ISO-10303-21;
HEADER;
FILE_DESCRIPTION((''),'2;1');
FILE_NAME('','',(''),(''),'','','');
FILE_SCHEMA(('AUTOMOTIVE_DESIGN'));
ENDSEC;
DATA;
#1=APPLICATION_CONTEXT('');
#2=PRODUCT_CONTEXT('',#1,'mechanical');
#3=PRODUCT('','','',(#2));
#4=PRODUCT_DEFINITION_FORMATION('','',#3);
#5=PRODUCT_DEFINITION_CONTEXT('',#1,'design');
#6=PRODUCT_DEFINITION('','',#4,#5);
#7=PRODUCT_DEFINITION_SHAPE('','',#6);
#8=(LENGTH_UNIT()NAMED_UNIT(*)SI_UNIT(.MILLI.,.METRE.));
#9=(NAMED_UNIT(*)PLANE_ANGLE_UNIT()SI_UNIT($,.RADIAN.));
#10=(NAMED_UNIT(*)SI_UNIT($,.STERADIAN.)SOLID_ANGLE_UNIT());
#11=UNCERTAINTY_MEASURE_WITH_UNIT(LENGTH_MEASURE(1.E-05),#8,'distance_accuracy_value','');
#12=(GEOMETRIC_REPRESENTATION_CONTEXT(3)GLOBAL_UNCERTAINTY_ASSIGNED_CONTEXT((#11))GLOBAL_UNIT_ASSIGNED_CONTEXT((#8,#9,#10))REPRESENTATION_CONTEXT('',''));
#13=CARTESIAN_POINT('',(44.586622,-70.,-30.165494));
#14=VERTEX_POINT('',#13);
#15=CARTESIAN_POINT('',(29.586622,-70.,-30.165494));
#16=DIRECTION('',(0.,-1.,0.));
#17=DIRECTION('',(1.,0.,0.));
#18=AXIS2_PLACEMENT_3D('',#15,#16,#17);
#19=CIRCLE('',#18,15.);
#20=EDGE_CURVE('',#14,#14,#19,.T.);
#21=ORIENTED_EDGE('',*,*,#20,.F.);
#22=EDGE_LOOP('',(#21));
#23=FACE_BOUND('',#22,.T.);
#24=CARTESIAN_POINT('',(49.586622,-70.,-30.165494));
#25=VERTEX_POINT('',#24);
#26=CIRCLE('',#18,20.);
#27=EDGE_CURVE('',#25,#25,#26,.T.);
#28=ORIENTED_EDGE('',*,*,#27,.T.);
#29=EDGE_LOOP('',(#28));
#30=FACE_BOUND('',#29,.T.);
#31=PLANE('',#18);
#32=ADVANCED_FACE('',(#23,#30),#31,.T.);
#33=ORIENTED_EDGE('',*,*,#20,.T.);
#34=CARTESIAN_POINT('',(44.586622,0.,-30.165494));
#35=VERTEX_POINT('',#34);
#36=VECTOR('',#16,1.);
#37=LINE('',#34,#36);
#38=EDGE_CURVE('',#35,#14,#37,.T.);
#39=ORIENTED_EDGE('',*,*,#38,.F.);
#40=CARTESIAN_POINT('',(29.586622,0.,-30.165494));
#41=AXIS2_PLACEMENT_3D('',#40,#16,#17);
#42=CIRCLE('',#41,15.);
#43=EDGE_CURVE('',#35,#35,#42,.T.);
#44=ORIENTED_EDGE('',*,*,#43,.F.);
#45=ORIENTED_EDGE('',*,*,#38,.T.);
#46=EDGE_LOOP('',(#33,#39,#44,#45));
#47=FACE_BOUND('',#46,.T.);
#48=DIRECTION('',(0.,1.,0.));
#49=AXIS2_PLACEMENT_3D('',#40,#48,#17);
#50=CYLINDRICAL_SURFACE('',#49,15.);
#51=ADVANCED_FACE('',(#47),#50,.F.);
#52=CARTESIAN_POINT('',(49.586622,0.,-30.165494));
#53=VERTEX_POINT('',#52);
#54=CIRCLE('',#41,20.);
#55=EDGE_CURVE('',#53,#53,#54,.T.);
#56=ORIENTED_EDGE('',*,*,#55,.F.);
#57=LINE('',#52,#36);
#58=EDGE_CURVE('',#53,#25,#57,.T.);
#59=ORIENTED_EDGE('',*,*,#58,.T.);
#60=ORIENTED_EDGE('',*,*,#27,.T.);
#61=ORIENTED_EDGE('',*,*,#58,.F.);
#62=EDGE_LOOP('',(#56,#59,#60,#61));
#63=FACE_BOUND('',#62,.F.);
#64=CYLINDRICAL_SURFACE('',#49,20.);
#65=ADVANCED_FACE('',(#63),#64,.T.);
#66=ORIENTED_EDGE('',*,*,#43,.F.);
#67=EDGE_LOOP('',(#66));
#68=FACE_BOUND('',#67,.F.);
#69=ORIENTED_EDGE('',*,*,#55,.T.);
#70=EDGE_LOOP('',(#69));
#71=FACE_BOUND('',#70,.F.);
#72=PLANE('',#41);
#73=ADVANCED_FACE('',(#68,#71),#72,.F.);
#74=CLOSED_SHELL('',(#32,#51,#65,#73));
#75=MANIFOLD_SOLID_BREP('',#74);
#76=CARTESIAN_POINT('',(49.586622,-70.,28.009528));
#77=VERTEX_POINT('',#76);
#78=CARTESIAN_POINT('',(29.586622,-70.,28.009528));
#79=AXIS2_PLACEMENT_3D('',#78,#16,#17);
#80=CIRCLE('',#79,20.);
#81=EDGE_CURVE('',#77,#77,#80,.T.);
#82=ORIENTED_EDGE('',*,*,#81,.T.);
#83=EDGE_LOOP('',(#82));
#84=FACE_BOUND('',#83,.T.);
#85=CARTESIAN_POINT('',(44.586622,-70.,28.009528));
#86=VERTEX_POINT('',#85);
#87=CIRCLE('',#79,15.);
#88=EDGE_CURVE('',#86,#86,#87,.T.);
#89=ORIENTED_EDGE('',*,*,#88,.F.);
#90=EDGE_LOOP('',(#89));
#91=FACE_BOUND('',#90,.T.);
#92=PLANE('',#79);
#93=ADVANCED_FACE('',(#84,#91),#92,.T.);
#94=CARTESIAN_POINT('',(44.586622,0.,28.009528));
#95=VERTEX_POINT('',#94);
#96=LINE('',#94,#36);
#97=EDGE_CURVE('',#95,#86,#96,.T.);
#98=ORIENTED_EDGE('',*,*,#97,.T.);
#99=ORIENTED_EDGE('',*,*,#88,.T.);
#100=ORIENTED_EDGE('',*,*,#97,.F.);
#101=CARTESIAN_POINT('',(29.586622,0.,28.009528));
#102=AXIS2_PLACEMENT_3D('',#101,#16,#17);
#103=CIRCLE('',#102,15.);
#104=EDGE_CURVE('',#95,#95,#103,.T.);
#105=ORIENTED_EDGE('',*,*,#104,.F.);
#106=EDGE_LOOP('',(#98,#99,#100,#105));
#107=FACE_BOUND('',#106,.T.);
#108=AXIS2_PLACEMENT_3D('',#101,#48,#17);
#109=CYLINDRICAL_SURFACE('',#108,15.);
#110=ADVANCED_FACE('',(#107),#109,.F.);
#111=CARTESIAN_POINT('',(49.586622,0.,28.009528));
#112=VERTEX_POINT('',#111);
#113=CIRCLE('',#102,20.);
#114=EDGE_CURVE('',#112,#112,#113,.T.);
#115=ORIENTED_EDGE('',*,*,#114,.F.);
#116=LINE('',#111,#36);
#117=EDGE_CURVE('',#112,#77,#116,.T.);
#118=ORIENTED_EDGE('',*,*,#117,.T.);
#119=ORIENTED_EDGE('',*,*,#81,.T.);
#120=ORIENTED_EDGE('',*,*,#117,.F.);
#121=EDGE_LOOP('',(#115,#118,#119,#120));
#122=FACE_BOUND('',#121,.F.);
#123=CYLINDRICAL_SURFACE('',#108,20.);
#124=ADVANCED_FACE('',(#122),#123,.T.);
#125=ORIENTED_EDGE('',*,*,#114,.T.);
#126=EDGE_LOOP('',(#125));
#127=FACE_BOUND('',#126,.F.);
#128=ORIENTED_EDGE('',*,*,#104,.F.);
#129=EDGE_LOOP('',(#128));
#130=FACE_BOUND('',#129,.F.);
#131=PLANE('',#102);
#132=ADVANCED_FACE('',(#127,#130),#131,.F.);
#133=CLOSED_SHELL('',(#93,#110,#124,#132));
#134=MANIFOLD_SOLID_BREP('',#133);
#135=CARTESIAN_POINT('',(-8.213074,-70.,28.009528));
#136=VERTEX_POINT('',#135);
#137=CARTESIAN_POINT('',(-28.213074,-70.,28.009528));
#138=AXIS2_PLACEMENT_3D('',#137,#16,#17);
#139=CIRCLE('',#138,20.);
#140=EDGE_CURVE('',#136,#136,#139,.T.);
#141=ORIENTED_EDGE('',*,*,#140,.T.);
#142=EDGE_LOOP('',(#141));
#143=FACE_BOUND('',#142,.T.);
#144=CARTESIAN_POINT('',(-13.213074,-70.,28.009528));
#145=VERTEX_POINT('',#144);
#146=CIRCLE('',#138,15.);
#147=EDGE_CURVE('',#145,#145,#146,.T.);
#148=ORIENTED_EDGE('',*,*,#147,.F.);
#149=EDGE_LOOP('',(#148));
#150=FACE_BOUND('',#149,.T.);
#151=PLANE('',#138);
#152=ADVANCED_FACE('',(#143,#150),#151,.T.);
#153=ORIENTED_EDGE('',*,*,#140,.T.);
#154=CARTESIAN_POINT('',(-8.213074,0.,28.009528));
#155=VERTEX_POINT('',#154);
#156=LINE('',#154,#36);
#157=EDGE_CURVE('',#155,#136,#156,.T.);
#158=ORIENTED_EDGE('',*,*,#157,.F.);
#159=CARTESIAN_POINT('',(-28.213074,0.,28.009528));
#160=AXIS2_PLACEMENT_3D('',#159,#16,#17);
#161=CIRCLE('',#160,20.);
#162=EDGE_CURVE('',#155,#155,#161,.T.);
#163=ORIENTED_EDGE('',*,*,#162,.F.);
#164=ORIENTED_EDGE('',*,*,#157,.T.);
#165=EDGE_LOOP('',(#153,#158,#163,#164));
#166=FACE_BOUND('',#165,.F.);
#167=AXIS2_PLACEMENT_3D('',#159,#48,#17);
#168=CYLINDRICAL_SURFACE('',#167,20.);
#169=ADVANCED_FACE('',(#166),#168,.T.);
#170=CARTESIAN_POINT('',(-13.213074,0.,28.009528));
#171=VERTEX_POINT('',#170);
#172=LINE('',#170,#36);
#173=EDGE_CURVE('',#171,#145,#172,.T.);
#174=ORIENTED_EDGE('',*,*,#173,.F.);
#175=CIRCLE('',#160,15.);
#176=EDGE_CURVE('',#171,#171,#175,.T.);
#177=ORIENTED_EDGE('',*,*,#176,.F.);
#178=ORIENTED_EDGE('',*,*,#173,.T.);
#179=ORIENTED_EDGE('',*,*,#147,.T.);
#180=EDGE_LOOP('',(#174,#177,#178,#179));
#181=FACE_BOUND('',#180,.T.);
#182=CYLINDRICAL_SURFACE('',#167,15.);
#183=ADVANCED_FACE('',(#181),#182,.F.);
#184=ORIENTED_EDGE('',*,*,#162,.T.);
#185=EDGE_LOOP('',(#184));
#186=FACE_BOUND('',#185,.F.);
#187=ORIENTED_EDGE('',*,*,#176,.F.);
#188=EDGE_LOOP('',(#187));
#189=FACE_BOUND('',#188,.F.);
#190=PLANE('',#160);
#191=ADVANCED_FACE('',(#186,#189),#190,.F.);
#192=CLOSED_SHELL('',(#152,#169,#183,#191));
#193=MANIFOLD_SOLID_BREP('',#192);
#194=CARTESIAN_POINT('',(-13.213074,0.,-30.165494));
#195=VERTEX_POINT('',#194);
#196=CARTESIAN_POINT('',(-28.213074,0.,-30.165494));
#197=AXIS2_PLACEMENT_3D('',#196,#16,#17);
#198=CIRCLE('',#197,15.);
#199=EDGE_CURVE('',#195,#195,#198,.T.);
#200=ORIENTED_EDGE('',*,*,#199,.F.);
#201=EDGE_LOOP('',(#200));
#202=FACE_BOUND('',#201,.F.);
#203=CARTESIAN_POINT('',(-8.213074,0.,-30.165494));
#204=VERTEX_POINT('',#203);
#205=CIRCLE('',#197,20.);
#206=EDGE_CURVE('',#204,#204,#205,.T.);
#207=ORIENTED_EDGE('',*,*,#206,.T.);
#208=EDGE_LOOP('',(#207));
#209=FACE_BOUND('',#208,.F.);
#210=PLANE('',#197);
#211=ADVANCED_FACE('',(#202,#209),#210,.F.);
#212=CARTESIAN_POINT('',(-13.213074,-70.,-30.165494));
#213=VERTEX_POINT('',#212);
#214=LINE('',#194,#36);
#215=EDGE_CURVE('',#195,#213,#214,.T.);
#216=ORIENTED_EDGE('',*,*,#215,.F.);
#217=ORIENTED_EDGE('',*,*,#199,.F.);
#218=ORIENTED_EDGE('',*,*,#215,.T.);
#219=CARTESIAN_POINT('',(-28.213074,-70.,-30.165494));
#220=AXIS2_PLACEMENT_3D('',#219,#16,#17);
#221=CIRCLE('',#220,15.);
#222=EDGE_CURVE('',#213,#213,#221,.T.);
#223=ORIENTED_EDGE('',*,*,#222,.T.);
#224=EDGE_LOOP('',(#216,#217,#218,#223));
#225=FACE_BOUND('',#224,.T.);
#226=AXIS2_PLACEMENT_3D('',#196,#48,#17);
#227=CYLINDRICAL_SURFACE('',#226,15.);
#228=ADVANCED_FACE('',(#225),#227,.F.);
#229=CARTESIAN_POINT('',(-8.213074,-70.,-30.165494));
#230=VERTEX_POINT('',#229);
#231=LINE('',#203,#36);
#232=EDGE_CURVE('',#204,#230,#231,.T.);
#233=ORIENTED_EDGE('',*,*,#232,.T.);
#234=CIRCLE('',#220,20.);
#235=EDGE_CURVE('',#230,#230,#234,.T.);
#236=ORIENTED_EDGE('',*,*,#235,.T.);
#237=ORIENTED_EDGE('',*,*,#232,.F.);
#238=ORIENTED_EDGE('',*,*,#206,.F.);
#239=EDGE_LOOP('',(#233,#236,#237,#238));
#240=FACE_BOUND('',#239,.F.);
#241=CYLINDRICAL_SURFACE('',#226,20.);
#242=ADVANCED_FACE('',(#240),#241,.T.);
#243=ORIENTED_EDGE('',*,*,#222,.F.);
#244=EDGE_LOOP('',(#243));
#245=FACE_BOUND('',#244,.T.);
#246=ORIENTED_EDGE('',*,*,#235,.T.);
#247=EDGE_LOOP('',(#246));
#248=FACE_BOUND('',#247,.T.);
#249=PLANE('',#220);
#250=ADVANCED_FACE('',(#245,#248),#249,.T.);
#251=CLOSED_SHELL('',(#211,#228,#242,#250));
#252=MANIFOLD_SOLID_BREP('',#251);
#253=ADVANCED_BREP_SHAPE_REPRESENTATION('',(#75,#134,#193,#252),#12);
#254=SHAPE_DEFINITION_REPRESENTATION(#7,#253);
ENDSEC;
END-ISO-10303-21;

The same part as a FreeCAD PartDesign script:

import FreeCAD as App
import Part
import Sketcher
from FreeCAD import Vector
Q = App.Units.Quantity

doc = App.newDocument("Part")
params = doc.addObject("Spreadsheet::Sheet", "Params")
for row, (alias, value) in enumerate([
    ("sketch1_diameter", "40 mm"),
    ("sketch1_diameter2", "30 mm"),
    ("pad1_length", "70 mm"),
], start=1):
    params.set(f"A{row}", alias)
    params.set(f"B{row}", "=" + value)
    params.setAlias(f"B{row}", alias)

body = doc.addObject("PartDesign::Body", "Body")
body.AllowCompound = True

sketch1 = body.newObject("Sketcher::SketchObject", "Sketch")
sketch1.AttachmentSupport = (doc.getObject("XZ_Plane"), [""])
sketch1.MapMode = "FlatFace"
sketch1.addGeometry(Part.Circle(Vector(-28, 28, 0), Vector(0, 0, 1), 20), False)
sketch1.addGeometry(Part.Circle(Vector(-28, 28, 0), Vector(0, 0, 1), 15), False)
sketch1.addGeometry(Part.Circle(Vector(30, 28, 0), Vector(0, 0, 1), 20), False)
sketch1.addGeometry(Part.Circle(Vector(30, 28, 0), Vector(0, 0, 1), 15), False)
sketch1.addGeometry(Part.Circle(Vector(30, -30, 0), Vector(0, 0, 1), 20), False)
sketch1.addGeometry(Part.Circle(Vector(30, -30, 0), Vector(0, 0, 1), 15), False)
sketch1.addGeometry(Part.Circle(Vector(-28, -30, 0), Vector(0, 0, 1), 20), False)
sketch1.addGeometry(Part.Circle(Vector(-28, -30, 0), Vector(0, 0, 1), 15), False)
sketch1.addConstraint(Sketcher.Constraint("Coincident", 1, 3, 0, 3))
sketch1.addConstraint(Sketcher.Constraint("Coincident", 3, 3, 2, 3))
sketch1.addConstraint(Sketcher.Constraint("Coincident", 5, 3, 4, 3))
sketch1.addConstraint(Sketcher.Constraint("Coincident", 7, 3, 6, 3))
sketch1.addConstraint(Sketcher.Constraint("Equal", 0, 2))
sketch1.addConstraint(Sketcher.Constraint("Equal", 1, 3))
sketch1.addConstraint(Sketcher.Constraint("Equal", 2, 4))
sketch1.addConstraint(Sketcher.Constraint("Equal", 3, 5))
sketch1.addConstraint(Sketcher.Constraint("Equal", 4, 6))
sketch1.addConstraint(Sketcher.Constraint("Equal", 5, 7))
sketch1.addConstraint(Sketcher.Constraint("Horizontal", 1, 3, 2, 3))
sketch1.addConstraint(Sketcher.Constraint("Horizontal", 5, 3, 6, 3))
sketch1.addConstraint(Sketcher.Constraint("Vertical", 3, 3, 4, 3))
sketch1.addConstraint(Sketcher.Constraint("Vertical", 1, 3, 6, 3))
sketch1.addConstraint(Sketcher.Constraint("Diameter", 0, Q("40 mm")))
sketch1.addConstraint(Sketcher.Constraint("Diameter", 1, Q("30 mm")))
sketch1.addConstraint(Sketcher.Constraint("DistanceX", -1, 1, 2, 3, Q("29.586622 mm")))
sketch1.addConstraint(Sketcher.Constraint("DistanceY", 4, 3, 2, 3, Q("58.175022 mm")))
sketch1.addConstraint(Sketcher.Constraint("DistanceX", 0, 3, -1, 1, Q("28.213074 mm")))
sketch1.addConstraint(Sketcher.Constraint("DistanceY", -1, 1, 0, 3, Q("28.009528 mm")))
sketch1.setExpression("Constraints[14]", "Params.sketch1_diameter")
sketch1.setExpression("Constraints[15]", "Params.sketch1_diameter2")
pad1 = body.newObject("PartDesign::Pad", "Pad")
pad1.Profile = sketch1
pad1.setExpression("Length", "Params.pad1_length")

doc.recompute()
